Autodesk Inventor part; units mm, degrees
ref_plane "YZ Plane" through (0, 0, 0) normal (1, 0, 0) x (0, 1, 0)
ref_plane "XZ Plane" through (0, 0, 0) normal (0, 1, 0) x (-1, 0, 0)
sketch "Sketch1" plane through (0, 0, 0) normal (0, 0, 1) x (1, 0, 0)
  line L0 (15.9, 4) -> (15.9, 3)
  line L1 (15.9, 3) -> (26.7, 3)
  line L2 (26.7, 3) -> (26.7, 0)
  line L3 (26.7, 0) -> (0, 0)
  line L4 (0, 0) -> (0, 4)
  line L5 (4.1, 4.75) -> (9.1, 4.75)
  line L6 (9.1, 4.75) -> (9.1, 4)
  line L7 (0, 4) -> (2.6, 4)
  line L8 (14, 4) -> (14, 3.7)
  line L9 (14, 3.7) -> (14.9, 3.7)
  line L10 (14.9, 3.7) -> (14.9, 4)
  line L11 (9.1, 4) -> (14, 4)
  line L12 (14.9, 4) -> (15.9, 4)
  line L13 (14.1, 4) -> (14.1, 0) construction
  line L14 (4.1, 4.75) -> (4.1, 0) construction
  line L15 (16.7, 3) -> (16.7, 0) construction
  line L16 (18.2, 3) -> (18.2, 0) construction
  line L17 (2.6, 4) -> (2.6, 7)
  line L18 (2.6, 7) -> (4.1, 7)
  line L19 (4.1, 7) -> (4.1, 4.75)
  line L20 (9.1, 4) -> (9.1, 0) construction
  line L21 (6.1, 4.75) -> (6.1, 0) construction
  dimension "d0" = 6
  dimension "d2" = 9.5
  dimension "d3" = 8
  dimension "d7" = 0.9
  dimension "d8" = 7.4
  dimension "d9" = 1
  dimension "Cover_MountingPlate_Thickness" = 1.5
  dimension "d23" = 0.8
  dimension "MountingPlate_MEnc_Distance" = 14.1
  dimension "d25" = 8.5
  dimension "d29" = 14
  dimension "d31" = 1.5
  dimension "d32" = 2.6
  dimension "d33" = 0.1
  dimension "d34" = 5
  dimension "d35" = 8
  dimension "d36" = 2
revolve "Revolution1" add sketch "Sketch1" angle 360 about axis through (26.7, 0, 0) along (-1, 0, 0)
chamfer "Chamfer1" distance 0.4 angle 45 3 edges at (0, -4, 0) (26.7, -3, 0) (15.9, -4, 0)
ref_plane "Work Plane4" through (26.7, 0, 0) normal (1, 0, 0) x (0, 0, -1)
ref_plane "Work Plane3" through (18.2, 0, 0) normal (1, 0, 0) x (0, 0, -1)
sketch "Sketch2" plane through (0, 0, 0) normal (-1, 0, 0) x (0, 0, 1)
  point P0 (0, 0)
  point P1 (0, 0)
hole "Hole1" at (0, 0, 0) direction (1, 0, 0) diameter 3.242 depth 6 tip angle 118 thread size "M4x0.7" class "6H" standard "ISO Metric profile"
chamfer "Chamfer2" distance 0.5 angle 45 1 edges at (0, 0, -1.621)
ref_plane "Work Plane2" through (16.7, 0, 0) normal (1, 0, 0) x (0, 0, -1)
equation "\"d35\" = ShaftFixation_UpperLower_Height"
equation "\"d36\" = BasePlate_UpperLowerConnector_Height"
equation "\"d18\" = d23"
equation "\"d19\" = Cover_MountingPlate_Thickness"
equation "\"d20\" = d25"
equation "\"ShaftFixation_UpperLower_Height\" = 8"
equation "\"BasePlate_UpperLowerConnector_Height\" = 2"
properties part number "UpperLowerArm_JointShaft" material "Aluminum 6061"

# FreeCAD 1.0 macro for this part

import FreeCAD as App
import Part
import Sketcher


def edges_at(feature, points):
    """Names of the edges that pass closest to the given points."""
    edges = feature.Shape.Edges
    near = lambda p: min(range(len(edges)), key=lambda i: edges[i].distToShape(Part.Vertex(*p))[0])
    return sorted({f"Edge{near(p) + 1}" for p in points})


def add_polygon(sketch, points):
    """Adds a closed chain of lines whose ends are joined by coincident constraints."""
    first, n = sketch.GeometryCount, len(points)
    for a, b in zip(points, points[1:] + points[:1]):
        sketch.addGeometry(Part.LineSegment(App.Vector(*a, 0), App.Vector(*b, 0)), False)
    for i in range(n):
        sketch.addConstraint(Sketcher.Constraint("Coincident", first + i, 2, first + (i + 1) % n, 1))

doc = App.newDocument("Part")
body = doc.addObject("PartDesign::Body", "Body")

# Sketch on XY plane
sketch1 = body.newObject("Sketcher::SketchObject", "Sketch")
sketch1.AttachmentSupport = (doc.getObject("XY_Plane"), [""])
sketch1.MapMode = "FlatFace"
add_polygon(sketch1, [(15.9, 3), (15.9, 4), (14.9, 4), (14.9, 3.7), (14, 3.7), (14, 4), (9.1, 4), (9.1, 4.75), (4.1, 4.75), (4.1, 7), (2.6, 7), (2.6, 4), (0, 4), (0, 0), (26.7, 0), (26.7, 3)])  # lines 0-15
sketch1.addConstraint([
    Sketcher.Constraint("Vertical", 0),
    Sketcher.Constraint("Horizontal", 1),
    Sketcher.Constraint("Vertical", 2),
    Sketcher.Constraint("Horizontal", 3),
    Sketcher.Constraint("Vertical", 4),
    Sketcher.Constraint("Horizontal", 5),
    Sketcher.Constraint("Vertical", 6),
    Sketcher.Constraint("Horizontal", 7),
    Sketcher.Constraint("Vertical", 8),
    Sketcher.Constraint("Horizontal", 9),
    Sketcher.Constraint("Vertical", 10),
    Sketcher.Constraint("Horizontal", 11),
    Sketcher.Constraint("Vertical", 12),
    Sketcher.Constraint("Horizontal", 13),
    Sketcher.Constraint("Vertical", 14),
    Sketcher.Constraint("Horizontal", 15),
    Sketcher.Constraint("Coincident", 12, 2, -1, 1),
    Sketcher.Constraint("Horizontal", 1, 2, 4, 2),
    Sketcher.Constraint("Horizontal", 5, 2, 10, 2),
    Sketcher.Constraint("Equal", 1, 0),
    Sketcher.Constraint("Equal", 10, 14),
    Sketcher.Constraint("DistanceX", 1, 2, 1, 1, 1.0),
    Sketcher.Constraint("DistanceX", 7, 2, 7, 1, 5.0),
    Sketcher.Constraint("DistanceX", 3, 2, 3, 1, 0.9),
    Sketcher.Constraint("DistanceX", 9, 2, 9, 1, 1.5),
    Sketcher.Constraint("DistanceX", 11, 2, 11, 1, 2.6),
    Sketcher.Constraint("DistanceX", -1, 1, 3, 2, 14.0),
    Sketcher.Constraint("DistanceY", 10, 2, 10, 1, 3.0),
    Sketcher.Constraint("DistanceX", 13, 1, 13, 2, 26.7),
    Sketcher.Constraint("DistanceY", 2, 2, 2, 1, 0.3),
    Sketcher.Constraint("DistanceY", 6, 1, 6, 2, 0.75),
])
revolution = body.newObject("PartDesign::Revolution", "Revolution")
revolution.Profile = sketch1
revolution.ReferenceAxis = (sketch1, ["H_Axis"])
revolution.Angle = 360
doc.recompute()

chamfer = body.newObject("PartDesign::Chamfer", "Chamfer")
chamfer.Base = (revolution, edges_at(revolution, [(0, -4, 0), (26.7, -3, 0), (15.9, -4, 0)]))
chamfer.Size = 0.4

# Sketch on YZ plane
sketch2 = body.newObject("Sketcher::SketchObject", "Sketch001")
sketch2.AttachmentSupport = (doc.getObject("YZ_Plane"), [""])
sketch2.MapMode = "FlatFace"
sketch2.addGeometry(Part.Circle(App.Vector(0, 0, 0), App.Vector(0, 0, 1), 1.621), False)
sketch2.addConstraint([
    Sketcher.Constraint("Coincident", 0, 3, -1, 1),
    Sketcher.Constraint("Diameter", 0, 3.242),
])
doc.recompute()
hole = body.newObject("PartDesign::Hole", "Hole")
hole.Profile = sketch2
hole.ThreadType = "None"
hole.Diameter = 3.242
hole.DepthType = "Dimension"
hole.Depth = 6
hole.DrillPoint = "Angled"
hole.DrillPointAngle = 118
hole.Reversed = True
doc.recompute()

chamfer2 = body.newObject("PartDesign::Chamfer", "Chamfer001")
chamfer2.Base = (hole, edges_at(hole, [(0, 0, -1.621)]))
chamfer2.Size = 0.5

doc.recompute()
